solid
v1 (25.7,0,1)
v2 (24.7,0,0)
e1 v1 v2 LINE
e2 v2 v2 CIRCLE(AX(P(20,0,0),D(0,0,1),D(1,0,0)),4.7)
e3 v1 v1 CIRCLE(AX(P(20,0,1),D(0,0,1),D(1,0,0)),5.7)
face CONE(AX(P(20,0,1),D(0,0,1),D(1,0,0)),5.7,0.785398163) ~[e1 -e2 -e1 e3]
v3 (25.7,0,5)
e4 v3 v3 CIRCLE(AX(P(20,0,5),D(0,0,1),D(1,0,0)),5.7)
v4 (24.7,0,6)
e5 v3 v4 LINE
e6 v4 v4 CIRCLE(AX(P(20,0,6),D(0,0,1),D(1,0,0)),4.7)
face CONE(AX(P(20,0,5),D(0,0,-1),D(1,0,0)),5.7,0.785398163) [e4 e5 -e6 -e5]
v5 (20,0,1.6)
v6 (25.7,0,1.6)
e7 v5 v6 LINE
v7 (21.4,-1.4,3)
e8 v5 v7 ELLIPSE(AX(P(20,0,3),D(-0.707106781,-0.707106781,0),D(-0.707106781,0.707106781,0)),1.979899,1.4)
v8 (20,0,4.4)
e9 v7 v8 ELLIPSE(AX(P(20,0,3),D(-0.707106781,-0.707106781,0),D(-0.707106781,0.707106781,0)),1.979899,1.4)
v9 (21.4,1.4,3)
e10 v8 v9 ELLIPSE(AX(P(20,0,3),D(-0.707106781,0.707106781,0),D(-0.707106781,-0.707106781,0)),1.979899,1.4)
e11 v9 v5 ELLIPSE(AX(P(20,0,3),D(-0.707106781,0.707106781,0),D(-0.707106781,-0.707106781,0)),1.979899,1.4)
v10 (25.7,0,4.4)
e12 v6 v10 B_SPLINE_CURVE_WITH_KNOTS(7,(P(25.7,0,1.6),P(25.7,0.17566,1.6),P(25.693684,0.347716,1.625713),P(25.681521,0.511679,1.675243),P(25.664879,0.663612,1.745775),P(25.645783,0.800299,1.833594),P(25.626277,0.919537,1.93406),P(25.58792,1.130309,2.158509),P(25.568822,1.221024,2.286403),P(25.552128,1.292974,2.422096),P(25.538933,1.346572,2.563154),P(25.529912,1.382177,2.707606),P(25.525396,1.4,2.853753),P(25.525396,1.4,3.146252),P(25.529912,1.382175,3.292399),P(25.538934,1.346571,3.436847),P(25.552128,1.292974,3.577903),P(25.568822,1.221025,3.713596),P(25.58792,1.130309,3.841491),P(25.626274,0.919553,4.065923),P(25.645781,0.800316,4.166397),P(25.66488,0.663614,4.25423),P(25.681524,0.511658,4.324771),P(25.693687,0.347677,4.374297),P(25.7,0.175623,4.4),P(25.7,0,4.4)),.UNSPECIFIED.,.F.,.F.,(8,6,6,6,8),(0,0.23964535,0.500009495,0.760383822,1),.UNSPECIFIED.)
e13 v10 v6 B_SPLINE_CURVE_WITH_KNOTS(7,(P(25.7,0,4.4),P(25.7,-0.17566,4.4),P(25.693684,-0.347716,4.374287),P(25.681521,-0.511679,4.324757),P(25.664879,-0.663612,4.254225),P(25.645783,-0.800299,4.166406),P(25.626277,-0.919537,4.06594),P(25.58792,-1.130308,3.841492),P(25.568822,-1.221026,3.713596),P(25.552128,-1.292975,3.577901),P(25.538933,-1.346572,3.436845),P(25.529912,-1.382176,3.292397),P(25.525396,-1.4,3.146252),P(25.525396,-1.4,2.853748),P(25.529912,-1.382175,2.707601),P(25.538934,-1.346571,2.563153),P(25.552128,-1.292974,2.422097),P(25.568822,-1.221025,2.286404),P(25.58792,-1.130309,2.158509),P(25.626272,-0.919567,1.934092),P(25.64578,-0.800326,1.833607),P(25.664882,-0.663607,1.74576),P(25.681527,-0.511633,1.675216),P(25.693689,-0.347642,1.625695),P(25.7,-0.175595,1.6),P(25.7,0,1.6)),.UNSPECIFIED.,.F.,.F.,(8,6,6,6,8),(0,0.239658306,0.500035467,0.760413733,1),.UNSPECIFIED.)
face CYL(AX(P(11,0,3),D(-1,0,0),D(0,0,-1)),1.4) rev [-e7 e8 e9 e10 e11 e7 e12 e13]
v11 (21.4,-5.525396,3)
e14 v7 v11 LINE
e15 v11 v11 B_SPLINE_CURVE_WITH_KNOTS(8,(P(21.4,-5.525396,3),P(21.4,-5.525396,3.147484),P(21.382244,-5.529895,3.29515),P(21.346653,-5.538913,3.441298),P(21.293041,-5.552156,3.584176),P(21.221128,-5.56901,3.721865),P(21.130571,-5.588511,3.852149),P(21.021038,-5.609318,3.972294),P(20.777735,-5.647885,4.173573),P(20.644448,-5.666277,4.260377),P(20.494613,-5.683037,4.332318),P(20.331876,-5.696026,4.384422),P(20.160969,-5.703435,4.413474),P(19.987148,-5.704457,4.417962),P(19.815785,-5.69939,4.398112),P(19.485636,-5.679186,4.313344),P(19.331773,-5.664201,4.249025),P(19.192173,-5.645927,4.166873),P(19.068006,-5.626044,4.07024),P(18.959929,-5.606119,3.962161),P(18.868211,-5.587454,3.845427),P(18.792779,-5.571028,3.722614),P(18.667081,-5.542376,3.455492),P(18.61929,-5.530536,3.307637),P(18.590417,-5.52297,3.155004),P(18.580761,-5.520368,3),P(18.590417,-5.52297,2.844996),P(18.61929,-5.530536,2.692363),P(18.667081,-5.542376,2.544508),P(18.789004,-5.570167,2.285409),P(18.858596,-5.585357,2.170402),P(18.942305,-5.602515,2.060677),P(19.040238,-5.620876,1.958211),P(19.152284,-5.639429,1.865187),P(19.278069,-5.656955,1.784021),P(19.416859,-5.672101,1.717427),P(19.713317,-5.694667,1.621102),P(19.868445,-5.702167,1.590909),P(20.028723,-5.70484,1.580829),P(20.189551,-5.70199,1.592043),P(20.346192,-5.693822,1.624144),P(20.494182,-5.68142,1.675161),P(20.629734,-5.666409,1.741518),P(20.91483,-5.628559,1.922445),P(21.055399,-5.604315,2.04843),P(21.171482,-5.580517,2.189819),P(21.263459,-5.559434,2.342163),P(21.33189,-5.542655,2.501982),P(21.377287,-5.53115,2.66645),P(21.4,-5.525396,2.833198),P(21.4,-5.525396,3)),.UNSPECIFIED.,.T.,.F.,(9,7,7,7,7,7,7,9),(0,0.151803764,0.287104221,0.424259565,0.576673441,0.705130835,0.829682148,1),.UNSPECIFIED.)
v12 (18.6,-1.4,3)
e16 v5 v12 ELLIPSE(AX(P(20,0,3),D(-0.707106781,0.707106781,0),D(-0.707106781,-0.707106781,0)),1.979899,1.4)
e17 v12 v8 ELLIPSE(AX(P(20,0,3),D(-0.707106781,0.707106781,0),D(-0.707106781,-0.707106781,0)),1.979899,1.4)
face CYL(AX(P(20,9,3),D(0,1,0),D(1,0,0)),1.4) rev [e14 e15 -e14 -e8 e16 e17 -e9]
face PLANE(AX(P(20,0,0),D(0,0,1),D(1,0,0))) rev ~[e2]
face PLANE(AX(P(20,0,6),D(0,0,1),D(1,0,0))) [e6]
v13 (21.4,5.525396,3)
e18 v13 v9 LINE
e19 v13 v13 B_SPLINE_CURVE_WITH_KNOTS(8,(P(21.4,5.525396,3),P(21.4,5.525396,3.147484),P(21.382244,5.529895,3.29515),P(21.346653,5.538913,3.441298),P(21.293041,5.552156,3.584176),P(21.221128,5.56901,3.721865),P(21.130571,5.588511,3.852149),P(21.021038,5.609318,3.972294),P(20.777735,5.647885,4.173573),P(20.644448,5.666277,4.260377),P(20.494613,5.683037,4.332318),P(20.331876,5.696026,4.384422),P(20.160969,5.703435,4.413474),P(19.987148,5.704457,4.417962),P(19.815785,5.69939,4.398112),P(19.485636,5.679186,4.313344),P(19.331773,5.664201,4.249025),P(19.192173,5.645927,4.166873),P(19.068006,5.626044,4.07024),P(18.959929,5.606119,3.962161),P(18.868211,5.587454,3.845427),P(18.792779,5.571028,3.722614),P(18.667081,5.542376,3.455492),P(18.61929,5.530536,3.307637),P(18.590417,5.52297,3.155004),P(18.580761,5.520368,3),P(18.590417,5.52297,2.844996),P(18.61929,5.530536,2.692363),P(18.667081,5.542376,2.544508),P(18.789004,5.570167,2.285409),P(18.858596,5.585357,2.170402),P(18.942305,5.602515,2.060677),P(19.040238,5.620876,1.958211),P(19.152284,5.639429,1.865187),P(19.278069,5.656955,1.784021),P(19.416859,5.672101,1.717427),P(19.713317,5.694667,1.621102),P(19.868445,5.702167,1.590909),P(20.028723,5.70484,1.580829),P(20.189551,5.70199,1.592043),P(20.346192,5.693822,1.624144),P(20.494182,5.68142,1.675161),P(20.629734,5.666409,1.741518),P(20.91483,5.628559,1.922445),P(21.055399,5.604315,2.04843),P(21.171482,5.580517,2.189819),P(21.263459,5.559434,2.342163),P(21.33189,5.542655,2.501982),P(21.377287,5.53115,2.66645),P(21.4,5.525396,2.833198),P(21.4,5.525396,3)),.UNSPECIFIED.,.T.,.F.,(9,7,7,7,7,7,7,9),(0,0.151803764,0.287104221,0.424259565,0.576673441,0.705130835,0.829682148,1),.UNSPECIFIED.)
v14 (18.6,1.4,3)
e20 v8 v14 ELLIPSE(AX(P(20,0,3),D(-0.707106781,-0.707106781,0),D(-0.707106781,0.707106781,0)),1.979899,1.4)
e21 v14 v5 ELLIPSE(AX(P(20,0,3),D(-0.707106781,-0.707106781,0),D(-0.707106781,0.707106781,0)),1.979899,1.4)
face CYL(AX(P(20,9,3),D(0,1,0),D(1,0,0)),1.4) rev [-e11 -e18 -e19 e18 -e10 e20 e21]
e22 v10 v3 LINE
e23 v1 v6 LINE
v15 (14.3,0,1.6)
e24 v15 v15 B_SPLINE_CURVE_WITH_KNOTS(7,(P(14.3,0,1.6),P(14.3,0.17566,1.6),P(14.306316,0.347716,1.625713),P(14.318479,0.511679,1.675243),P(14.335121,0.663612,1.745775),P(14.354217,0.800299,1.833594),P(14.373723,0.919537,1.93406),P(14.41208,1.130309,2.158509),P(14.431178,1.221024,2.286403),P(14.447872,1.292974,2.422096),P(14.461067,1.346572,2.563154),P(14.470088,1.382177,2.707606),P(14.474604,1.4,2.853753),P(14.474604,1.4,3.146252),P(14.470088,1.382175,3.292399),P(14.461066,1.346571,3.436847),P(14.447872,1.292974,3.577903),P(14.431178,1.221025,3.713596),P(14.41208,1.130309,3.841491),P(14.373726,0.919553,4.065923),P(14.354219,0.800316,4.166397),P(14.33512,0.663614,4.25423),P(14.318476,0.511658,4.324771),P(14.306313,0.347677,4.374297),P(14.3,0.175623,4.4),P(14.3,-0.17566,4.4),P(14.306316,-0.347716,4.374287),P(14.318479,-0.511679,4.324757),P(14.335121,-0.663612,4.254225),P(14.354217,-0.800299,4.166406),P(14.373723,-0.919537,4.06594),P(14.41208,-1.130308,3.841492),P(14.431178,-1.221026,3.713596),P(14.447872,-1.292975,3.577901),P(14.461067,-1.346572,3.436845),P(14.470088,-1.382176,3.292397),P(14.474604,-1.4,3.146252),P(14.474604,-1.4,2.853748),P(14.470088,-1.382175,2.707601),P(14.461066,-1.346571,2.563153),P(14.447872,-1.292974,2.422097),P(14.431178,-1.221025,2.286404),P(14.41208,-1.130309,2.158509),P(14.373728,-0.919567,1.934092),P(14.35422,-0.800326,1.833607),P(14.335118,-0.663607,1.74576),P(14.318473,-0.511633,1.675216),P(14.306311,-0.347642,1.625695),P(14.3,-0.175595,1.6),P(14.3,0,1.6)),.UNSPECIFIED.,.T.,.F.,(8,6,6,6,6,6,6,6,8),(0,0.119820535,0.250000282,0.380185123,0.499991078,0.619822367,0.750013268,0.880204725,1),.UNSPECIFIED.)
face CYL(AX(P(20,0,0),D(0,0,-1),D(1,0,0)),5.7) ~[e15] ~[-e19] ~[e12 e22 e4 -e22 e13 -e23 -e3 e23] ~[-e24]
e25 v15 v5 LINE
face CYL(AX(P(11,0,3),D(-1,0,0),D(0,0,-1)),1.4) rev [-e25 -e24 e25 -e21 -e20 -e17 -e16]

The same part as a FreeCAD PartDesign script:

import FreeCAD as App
import Part
import Sketcher
from FreeCAD import Vector
Q = App.Units.Quantity


def edges_at(feature, points):
    """Names of the edges that pass closest to the given points."""
    edges = feature.Shape.Edges
    near = lambda p: min(range(len(edges)), key=lambda i: edges[i].distToShape(Part.Vertex(*p))[0])
    return sorted({f"Edge{near(p) + 1}" for p in points})

doc = App.newDocument("Part")
params = doc.addObject("Spreadsheet::Sheet", "Params")
for row, (alias, value) in enumerate([
    ("sketch1_diameter", "2.8 mm"),
    ("pad1_length", "18 mm"),
    ("sketch2_diameter", "2.8 mm"),
    ("pad2_length", "18 mm"),
    ("sketch3_diameter", "11.4 mm"),
    ("pad3_length", "6 mm"),
    ("chamfer_size", "1 mm"),
], start=1):
    params.set(f"A{row}", alias)
    params.set(f"B{row}", "=" + value)
    params.setAlias(f"B{row}", alias)

body = doc.addObject("PartDesign::Body", "Body")

sketch1 = body.newObject("Sketcher::SketchObject", "Sketch")
sketch1.AttachmentSupport = (doc.getObject("XY_Plane"), [""])
sketch1.MapMode = "FlatFace"
sketch1.addGeometry(Part.Circle(Vector(0, 0, 0), Vector(0, 0, 1), 1.4), False)
sketch1.addConstraint(Sketcher.Constraint("Coincident", 0, 3, -1, 1))
sketch1.addConstraint(Sketcher.Constraint("Diameter", 0, Q("2.8 mm")))
sketch1.setExpression("Constraints[1]", "Params.sketch1_diameter")
pad1 = body.newObject("PartDesign::Pad", "Pad")
pad1.Profile = sketch1
pad1.setExpression("Length", "Params.pad1_length")
body2 = doc.addObject("PartDesign::Body", "Body001")
doc.recompute()

body.Placement = App.Placement(Vector(0, 0, 0), App.Rotation(Vector(1, 0, 0), 90))
boolean = body2.newObject("PartDesign::Boolean", "Boolean")
boolean.Type = "Fuse"
boolean.addObjects([body])
body3 = doc.addObject("PartDesign::Body", "Body002")
doc.recompute()

body2.Placement = App.Placement(Vector(0, 9, 3), App.Rotation(Vector(0, 0, 1), 0))
boolean2 = body3.newObject("PartDesign::Boolean", "Boolean001")
boolean2.Type = "Fuse"
boolean2.addObjects([body2])
body4 = doc.addObject("PartDesign::Body", "Body003")

sketch2 = body4.newObject("Sketcher::SketchObject", "Sketch001")
sketch2.AttachmentSupport = (doc.getObject("XY_Plane003"), [""])
sketch2.MapMode = "FlatFace"
sketch2.addGeometry(Part.Circle(Vector(0, 0, 0), Vector(0, 0, 1), 1.4), False)
sketch2.addConstraint(Sketcher.Constraint("Coincident", 0, 3, -1, 1))
sketch2.addConstraint(Sketcher.Constraint("Diameter", 0, Q("2.8 mm")))
sketch2.setExpression("Constraints[1]", "Params.sketch2_diameter")
pad2 = body4.newObject("PartDesign::Pad", "Pad001")
pad2.Profile = sketch2
pad2.setExpression("Length", "Params.pad2_length")
body5 = doc.addObject("PartDesign::Body", "Body004")
doc.recompute()

body4.Placement = App.Placement(Vector(0, 0, 0), App.Rotation(Vector(0, 1, 0), 90))
boolean3 = body5.newObject("PartDesign::Boolean", "Boolean002")
boolean3.Type = "Fuse"
boolean3.addObjects([body4])
body6 = doc.addObject("PartDesign::Body", "Body005")
doc.recompute()

body5.Placement = App.Placement(Vector(-9, 0, 3), App.Rotation(Vector(0, 0, 1), 0))
boolean4 = body6.newObject("PartDesign::Boolean", "Boolean003")
boolean4.Type = "Fuse"
boolean4.addObjects([body5])
doc.recompute()

boolean5 = body6.newObject("PartDesign::Boolean", "Boolean004")
boolean5.Type = "Fuse"
boolean5.addObjects([body3])
body7 = doc.addObject("PartDesign::Body", "Body006")

sketch3 = body7.newObject("Sketcher::SketchObject", "Sketch002")
sketch3.AttachmentSupport = (doc.getObject("XY_Plane006"), [""])
sketch3.MapMode = "FlatFace"
sketch3.addGeometry(Part.Circle(Vector(0, 0, 0), Vector(0, 0, 1), 6), False)
sketch3.addConstraint(Sketcher.Constraint("Coincident", 0, 3, -1, 1))
sketch3.addConstraint(Sketcher.Constraint("Diameter", 0, Q("11.4 mm")))
sketch3.setExpression("Constraints[1]", "Params.sketch3_diameter")
pad3 = body7.newObject("PartDesign::Pad", "Pad002")
pad3.Profile = sketch3
pad3.setExpression("Length", "Params.pad3_length")
doc.recompute()

boolean6 = body7.newObject("PartDesign::Boolean", "Boolean005")
boolean6.Type = "Cut"
boolean6.addObjects([body6])
doc.recompute()

chamfer = body7.newObject("PartDesign::Chamfer", "Chamfer")
chamfer.Base = (boolean6, edges_at(boolean6, [(-5.7, 0, 0), (-5.7, 0, 6)]))
chamfer.setExpression("Size", "Params.chamfer_size")
body8 = doc.addObject("PartDesign::Body", "Body007")
doc.recompute()

body7.Placement = App.Placement(Vector(20, 0, 0), App.Rotation(Vector(0, 0, 1), 0))
boolean7 = body8.newObject("PartDesign::Boolean", "Boolean006")
boolean7.Type = "Fuse"
boolean7.addObjects([body7])

doc.recompute()
